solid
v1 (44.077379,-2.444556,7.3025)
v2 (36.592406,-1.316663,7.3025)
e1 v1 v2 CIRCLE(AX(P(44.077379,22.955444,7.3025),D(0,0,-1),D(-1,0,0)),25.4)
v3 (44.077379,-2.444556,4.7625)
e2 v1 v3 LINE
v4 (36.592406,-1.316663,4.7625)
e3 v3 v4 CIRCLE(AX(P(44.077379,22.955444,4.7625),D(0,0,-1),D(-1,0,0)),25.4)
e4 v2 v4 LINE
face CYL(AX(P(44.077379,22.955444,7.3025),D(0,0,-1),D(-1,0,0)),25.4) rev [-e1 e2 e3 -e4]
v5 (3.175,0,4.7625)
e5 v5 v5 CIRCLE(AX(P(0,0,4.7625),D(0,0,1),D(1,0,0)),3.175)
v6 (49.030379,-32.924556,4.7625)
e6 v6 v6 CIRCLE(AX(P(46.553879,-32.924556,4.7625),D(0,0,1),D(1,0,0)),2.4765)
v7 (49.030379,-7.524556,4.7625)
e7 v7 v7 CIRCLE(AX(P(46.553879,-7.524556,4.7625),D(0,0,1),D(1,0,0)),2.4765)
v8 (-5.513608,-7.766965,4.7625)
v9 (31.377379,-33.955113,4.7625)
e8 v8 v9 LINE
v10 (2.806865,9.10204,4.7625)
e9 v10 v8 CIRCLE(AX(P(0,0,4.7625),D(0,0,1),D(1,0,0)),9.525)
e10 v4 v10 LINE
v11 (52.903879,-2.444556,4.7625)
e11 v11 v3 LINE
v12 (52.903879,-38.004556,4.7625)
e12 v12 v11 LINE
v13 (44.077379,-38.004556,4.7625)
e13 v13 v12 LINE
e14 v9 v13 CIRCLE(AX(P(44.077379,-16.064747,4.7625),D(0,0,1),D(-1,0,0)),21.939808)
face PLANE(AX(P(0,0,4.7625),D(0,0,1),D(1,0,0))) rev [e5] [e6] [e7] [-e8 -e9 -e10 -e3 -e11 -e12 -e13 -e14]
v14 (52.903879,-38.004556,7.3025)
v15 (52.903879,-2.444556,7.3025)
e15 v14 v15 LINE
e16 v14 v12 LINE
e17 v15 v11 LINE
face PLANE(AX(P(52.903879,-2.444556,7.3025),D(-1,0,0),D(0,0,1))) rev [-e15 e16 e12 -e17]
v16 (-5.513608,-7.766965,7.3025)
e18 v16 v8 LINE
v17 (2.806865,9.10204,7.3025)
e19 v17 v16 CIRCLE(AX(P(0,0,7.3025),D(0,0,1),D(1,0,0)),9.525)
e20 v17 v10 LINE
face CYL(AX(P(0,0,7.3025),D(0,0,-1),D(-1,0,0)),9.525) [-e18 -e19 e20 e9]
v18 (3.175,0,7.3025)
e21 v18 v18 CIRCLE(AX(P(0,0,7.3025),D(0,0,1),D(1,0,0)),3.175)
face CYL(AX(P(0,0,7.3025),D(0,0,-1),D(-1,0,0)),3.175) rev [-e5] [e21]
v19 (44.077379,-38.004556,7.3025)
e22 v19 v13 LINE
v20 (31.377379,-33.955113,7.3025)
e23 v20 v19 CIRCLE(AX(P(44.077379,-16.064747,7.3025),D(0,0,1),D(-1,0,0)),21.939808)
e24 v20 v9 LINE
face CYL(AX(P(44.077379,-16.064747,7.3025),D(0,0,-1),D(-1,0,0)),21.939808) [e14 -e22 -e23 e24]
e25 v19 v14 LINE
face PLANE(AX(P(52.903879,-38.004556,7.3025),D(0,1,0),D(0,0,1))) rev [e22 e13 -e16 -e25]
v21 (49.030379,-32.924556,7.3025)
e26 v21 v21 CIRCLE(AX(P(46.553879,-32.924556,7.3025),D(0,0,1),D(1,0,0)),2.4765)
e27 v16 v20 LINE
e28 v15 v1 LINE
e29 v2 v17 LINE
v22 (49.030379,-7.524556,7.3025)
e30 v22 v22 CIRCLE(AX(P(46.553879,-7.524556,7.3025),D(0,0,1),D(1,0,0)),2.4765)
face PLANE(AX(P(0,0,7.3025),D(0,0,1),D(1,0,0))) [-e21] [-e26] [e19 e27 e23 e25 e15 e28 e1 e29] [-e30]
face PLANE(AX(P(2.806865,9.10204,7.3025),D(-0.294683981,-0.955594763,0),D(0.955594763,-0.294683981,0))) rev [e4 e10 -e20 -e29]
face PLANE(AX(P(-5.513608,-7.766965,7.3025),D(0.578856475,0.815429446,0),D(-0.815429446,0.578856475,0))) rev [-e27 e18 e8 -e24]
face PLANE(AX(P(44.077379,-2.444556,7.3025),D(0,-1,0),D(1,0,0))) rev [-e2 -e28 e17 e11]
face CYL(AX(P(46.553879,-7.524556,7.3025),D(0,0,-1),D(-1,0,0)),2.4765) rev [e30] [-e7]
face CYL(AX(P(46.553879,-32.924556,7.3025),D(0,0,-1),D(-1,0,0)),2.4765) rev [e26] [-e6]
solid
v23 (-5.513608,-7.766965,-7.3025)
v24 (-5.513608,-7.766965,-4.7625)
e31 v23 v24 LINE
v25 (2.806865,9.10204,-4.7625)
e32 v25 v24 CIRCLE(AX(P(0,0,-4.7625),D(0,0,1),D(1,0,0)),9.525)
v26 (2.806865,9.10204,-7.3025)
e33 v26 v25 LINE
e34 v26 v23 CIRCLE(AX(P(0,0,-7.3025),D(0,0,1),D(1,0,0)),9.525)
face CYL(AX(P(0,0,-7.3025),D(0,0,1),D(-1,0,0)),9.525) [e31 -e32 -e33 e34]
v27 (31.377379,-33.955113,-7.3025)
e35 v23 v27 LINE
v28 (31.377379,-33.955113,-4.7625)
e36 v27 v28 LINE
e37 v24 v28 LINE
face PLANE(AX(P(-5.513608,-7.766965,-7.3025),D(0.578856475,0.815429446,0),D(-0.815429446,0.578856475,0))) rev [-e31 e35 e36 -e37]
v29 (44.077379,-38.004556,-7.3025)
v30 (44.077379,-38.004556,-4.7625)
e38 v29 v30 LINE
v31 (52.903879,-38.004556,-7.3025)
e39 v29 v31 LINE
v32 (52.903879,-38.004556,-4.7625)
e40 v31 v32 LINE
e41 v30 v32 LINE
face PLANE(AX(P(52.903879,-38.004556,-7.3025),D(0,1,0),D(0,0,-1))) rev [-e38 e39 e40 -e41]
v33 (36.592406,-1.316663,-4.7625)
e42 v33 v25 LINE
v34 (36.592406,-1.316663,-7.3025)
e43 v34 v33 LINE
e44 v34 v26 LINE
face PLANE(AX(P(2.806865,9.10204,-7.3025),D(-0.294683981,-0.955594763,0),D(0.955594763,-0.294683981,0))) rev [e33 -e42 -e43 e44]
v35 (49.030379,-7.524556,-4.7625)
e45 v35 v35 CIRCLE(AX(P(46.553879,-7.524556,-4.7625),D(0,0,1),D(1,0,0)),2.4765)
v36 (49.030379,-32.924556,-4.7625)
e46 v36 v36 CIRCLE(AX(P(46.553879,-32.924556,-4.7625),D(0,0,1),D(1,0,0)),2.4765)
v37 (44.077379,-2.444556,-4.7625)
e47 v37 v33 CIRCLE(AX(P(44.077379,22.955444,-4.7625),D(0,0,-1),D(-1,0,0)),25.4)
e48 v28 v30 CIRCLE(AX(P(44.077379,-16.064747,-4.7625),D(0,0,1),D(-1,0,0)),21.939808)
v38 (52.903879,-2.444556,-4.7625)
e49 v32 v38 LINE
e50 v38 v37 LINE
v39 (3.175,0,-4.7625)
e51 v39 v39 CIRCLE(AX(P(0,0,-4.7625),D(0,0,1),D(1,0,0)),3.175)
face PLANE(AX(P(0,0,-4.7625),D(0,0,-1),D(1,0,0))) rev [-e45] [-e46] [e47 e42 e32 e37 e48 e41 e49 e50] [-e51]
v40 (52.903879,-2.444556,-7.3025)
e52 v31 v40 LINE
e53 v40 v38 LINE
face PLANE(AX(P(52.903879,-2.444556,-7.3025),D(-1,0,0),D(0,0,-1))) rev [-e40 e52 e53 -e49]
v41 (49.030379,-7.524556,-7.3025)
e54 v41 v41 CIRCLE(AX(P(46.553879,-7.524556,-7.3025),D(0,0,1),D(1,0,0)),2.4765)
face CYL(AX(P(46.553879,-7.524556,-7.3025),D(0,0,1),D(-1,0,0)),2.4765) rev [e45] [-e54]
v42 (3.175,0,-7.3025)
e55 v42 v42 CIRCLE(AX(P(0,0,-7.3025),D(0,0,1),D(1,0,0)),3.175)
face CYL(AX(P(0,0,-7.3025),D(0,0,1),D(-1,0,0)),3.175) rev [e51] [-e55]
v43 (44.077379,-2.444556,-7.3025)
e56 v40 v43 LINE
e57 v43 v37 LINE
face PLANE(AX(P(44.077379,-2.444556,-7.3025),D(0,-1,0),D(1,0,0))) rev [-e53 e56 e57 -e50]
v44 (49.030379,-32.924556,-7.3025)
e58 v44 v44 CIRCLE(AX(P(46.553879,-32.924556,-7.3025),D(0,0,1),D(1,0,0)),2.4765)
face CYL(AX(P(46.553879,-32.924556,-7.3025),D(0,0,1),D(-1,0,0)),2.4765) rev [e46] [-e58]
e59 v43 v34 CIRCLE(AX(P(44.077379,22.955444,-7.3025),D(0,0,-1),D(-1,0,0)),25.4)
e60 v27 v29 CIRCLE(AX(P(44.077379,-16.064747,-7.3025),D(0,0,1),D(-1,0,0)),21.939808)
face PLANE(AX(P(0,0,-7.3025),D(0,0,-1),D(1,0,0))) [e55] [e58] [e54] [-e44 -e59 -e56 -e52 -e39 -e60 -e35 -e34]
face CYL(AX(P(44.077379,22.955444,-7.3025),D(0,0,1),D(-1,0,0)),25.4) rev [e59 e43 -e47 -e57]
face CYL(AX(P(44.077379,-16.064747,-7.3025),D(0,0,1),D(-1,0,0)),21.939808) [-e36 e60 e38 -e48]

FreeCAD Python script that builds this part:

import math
import FreeCAD as App
import Part
import Sketcher

V = App.Vector
Q = App.Units.Quantity

doc = App.newDocument("Part")
params = doc.addObject("Spreadsheet::Sheet", "Params")
for row, (alias, value) in enumerate([
    ("sketch1_radius", "1 in"),
    ("sketch1_diameter", "0.25 in"),
    ("sketch1_diameter2", "0.195 in"),
    ("sketch1_height", "1.4 in"),
    ("sketch1_radius2", "0.375 in"),
    ("pad1_length", "0.1 in"),
], start=1):
    params.set(f"A{row}", alias)
    params.set(f"B{row}", "=" + value)
    params.setAlias(f"B{row}", alias)

body = doc.addObject("PartDesign::Body", "Body")

# Sketch on XY plane
sketch1 = body.newObject("Sketcher::SketchObject", "Sketch")
sketch1.AttachmentSupport = (doc.getObject("XY_Plane"), [""])
sketch1.MapMode = "FlatFace"
sketch1.AttachmentOffset = App.Placement(V(0, 0, 0.1875 * 25.4), App.Rotation())
sketch1.addGeometry([
    Part.LineSegment(V(36.6, -1.3, 0), V(2.8, 9.1, 0)),  # 0
    Part.ArcOfCircle(Part.Circle(V(0, 0, 0), V(0, 0, 1), 9.5), math.radians(73), math.radians(235)),  # 1
    Part.LineSegment(V(-5.5, -7.8, 0), V(31.4, -34, 0)),  # 2
    Part.ArcOfCircle(Part.Circle(V(44.1, -16.1, 0), V(0, 0, 1), 21.9), math.radians(-125), math.radians(-90)),  # 3
    Part.LineSegment(V(44.1, -38, 0), V(52.9, -38, 0)),  # 4
    Part.LineSegment(V(52.9, -38, 0), V(52.9, -2.4, 0)),  # 5
    Part.LineSegment(V(52.9, -2.4, 0), V(44.1, -2.4, 0)),  # 6
    Part.ArcOfCircle(Part.Circle(V(44.1, 23, 0), V(0, 0, 1), 25.4), math.radians(-107.14), math.radians(-90)),  # 7
    Part.Circle(V(46.6, -32.9, 0), V(0, 0, 1), 2.5),  # 8
    Part.Circle(V(46.6, -7.5, 0), V(0, 0, 1), 2.5),  # 9
    Part.Circle(V(0, 0, 0), V(0, 0, 1), 3.2),  # 10
], False)
sketch1.addConstraint([
    Sketcher.Constraint("Tangent", 0, 2, 1, 1),
    Sketcher.Constraint("Tangent", 1, 2, 2, 1),
    Sketcher.Constraint("Tangent", 2, 2, 3, 1),
    Sketcher.Constraint("Tangent", 3, 2, 4, 1),
    Sketcher.Constraint("Coincident", 4, 2, 5, 1),
    Sketcher.Constraint("Coincident", 5, 2, 6, 1),
    Sketcher.Constraint("Tangent", 6, 2, 7, 2),
    Sketcher.Constraint("Tangent", 7, 1, 0, 1),
    Sketcher.Constraint("Horizontal", 4),
    Sketcher.Constraint("Vertical", 5),
    Sketcher.Constraint("Horizontal", 6),
    Sketcher.Constraint("Coincident", 1, 3, -1, 1),
    Sketcher.Constraint("Coincident", 10, 3, -1, 1),
    Sketcher.Constraint("Equal", 8, 9),
    Sketcher.Constraint("Vertical", 3, 3, 7, 3),
    Sketcher.Constraint("Vertical", 8, 3, 9, 3),
    Sketcher.Constraint("Radius", 7, Q("1 in")),
    Sketcher.Constraint("Diameter", 10, Q("0.25 in")),
    Sketcher.Constraint("Diameter", 8, Q("0.195 in")),
    Sketcher.Constraint("DistanceY", 5, 1, 5, 2, Q("1.4 in")),
    Sketcher.Constraint("Radius", 1, Q("0.375 in")),
    Sketcher.Constraint("DistanceY", 8, 3, 9, 3, Q("1 in")),
    Sketcher.Constraint("DistanceY", 8, 3, 7, 3, Q("2.2 in")),
    Sketcher.Constraint("DistanceX", 2, 2, 3, 3, Q("0.5 in")),
    Sketcher.Constraint("DistanceX", 8, 3, 4, 2, Q("0.25 in")),
    Sketcher.Constraint("DistanceX", 4, 1, 4, 2, Q("0.3475 in")),
    Sketcher.Constraint("Radius", 3, 21.939808),
    Sketcher.Constraint("Distance", 0, 35.355511),
])
sketch1.setExpression("Constraints[16]", "Params.sketch1_radius")
sketch1.setExpression("Constraints[17]", "Params.sketch1_diameter")
sketch1.setExpression("Constraints[18]", "Params.sketch1_diameter2")
sketch1.setExpression("Constraints[19]", "Params.sketch1_height")
sketch1.setExpression("Constraints[20]", "Params.sketch1_radius2")
pad1 = body.newObject("PartDesign::Pad", "Pad")
pad1.Profile = sketch1
pad1.setExpression("Length", "Params.pad1_length")
body2 = doc.addObject("PartDesign::Body", "Body001")
doc.recompute()

mirroring = doc.addObject("Part::Mirroring", "Mirroring")
mirroring.Source = body
mirroring.Base = V(0, 0, 0)
mirroring.Normal = V(0, 0, 1)
body2.BaseFeature = mirroring
doc.recompute()
mirroring.Visibility = False

doc.recompute()
